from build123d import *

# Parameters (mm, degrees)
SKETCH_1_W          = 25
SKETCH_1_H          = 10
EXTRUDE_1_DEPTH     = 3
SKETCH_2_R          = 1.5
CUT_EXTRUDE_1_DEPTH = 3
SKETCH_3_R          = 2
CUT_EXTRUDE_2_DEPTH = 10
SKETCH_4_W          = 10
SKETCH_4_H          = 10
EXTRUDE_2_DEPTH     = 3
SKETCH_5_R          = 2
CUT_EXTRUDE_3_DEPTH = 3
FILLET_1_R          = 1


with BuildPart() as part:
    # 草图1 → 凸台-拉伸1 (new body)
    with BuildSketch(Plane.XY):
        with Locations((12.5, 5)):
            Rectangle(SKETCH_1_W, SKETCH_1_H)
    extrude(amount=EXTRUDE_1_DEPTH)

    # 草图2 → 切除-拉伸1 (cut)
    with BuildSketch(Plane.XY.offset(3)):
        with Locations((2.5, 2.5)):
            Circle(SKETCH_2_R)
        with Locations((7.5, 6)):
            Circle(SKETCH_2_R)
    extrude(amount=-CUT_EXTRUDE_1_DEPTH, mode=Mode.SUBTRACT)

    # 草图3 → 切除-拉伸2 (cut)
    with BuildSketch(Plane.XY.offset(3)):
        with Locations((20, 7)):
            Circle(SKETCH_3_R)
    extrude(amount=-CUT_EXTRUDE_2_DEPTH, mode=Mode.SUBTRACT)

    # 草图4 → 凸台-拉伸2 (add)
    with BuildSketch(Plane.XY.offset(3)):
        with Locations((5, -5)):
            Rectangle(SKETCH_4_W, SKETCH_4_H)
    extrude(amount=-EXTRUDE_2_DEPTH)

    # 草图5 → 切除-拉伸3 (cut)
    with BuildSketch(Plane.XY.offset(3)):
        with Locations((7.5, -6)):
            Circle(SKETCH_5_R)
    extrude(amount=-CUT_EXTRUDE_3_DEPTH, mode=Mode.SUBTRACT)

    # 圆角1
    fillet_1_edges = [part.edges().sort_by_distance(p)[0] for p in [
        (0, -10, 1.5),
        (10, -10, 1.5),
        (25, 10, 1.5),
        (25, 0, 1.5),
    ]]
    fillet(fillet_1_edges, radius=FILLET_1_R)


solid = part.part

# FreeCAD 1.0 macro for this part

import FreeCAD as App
import Part
import Sketcher

V = App.Vector
Q = App.Units.Quantity


def edges_at(feature, points):
    """Names of the edges that pass closest to the given points."""
    edges = feature.Shape.Edges
    near = lambda p: min(range(len(edges)), key=lambda i: edges[i].distToShape(Part.Vertex(*p))[0])
    return sorted({f"Edge{near(p) + 1}" for p in points})

doc = App.newDocument("Part")
body = doc.addObject("PartDesign::Body", "Body")

# Sketch on XY plane
sketch1 = body.newObject("Sketcher::SketchObject", "Sketch")
sketch1.AttachmentSupport = (doc.getObject("XY_Plane"), [""])
sketch1.MapMode = "FlatFace"
sketch1.addGeometry([
    Part.LineSegment(V(0, 10, 0), V(0, 0, 0)),
    Part.LineSegment(V(0, 0, 0), V(25, 0, 0)),
    Part.LineSegment(V(25, 0, 0), V(25, 10, 0)),
    Part.LineSegment(V(25, 10, 0), V(0, 10, 0)),
], False)
sketch1.addConstraint([
    Sketcher.Constraint("Coincident", 0, 2, 1, 1),
    Sketcher.Constraint("Coincident", 1, 2, 2, 1),
    Sketcher.Constraint("Coincident", 2, 2, 3, 1),
    Sketcher.Constraint("Coincident", 3, 2, 0, 1),
    Sketcher.Constraint("Vertical", 0),
    Sketcher.Constraint("Horizontal", 1),
    Sketcher.Constraint("Vertical", 2),
    Sketcher.Constraint("Horizontal", 3),
    Sketcher.Constraint("Coincident", 0, 2, -1, 1),
    Sketcher.Constraint("DistanceX", 1, 1, 1, 2, Q("25 mm")),
    Sketcher.Constraint("DistanceY", 0, 2, 0, 1, Q("10 mm")),
])
pad1 = body.newObject("PartDesign::Pad", "Pad")
pad1.Profile = sketch1
pad1.Length = 3

# Sketch on XY plane
sketch2 = body.newObject("Sketcher::SketchObject", "Sketch001")
sketch2.AttachmentSupport = (doc.getObject("XY_Plane"), [""])
sketch2.MapMode = "FlatFace"
sketch2.AttachmentOffset = App.Placement(V(0, 0, 3), App.Rotation())
sketch2.addGeometry([
    Part.Circle(V(2.5, 2.5, 0), V(0, 0, 1), 1.5),
    Part.Circle(V(7.5, 6, 0), V(0, 0, 1), 1.5),
], False)
sketch2.addConstraint([
    Sketcher.Constraint("Equal", 0, 1),
    Sketcher.Constraint("Diameter", 0, Q("3 mm")),
    Sketcher.Constraint("DistanceY", -1, 1, 1, 3, Q("6 mm")),
    Sketcher.Constraint("DistanceX", 0, 3, 1, 3, Q("5 mm")),
    Sketcher.Constraint("DistanceX", -1, 1, 0, 3, Q("2.5 mm")),
    Sketcher.Constraint("DistanceY", -1, 1, 0, 3, Q("2.5 mm")),
])
pocket1 = body.newObject("PartDesign::Pocket", "Pocket")
pocket1.Profile = sketch2
pocket1.Length = 3

# Sketch on XY plane
sketch3 = body.newObject("Sketcher::SketchObject", "Sketch002")
sketch3.AttachmentSupport = (doc.getObject("XY_Plane"), [""])
sketch3.MapMode = "FlatFace"
sketch3.AttachmentOffset = App.Placement(V(0, 0, 3), App.Rotation())
sketch3.addGeometry(Part.Circle(V(20, 7, 0), V(0, 0, 1), 2), False)
sketch3.addConstraint([
    Sketcher.Constraint("Diameter", 0, Q("4 mm")),
    Sketcher.Constraint("DistanceX", -1, 1, 0, 3, Q("20 mm")),
    Sketcher.Constraint("DistanceY", -1, 1, 0, 3, Q("7 mm")),
])
pocket2 = body.newObject("PartDesign::Pocket", "Pocket001")
pocket2.Profile = sketch3
pocket2.Length = 10

# Sketch on XY plane
sketch4 = body.newObject("Sketcher::SketchObject", "Sketch003")
sketch4.AttachmentSupport = (doc.getObject("XY_Plane"), [""])
sketch4.MapMode = "FlatFace"
sketch4.AttachmentOffset = App.Placement(V(0, 0, 3), App.Rotation())
sketch4.addGeometry([
    Part.LineSegment(V(0, 0, 0), V(0, -10, 0)),
    Part.LineSegment(V(0, -10, 0), V(10, -10, 0)),
    Part.LineSegment(V(10, -10, 0), V(10, 0, 0)),
    Part.LineSegment(V(10, 0, 0), V(0, 0, 0)),
], False)
sketch4.addConstraint([
    Sketcher.Constraint("Coincident", 0, 2, 1, 1),
    Sketcher.Constraint("Coincident", 1, 2, 2, 1),
    Sketcher.Constraint("Coincident", 2, 2, 3, 1),
    Sketcher.Constraint("Coincident", 3, 2, 0, 1),
    Sketcher.Constraint("Vertical", 0),
    Sketcher.Constraint("Horizontal", 1),
    Sketcher.Constraint("Vertical", 2),
    Sketcher.Constraint("Horizontal", 3),
    Sketcher.Constraint("Coincident", 3, 2, -1, 1),
    Sketcher.Constraint("Equal", 3, 0),
    Sketcher.Constraint("DistanceX", 1, 1, 1, 2, Q("10 mm")),
])
pad2 = body.newObject("PartDesign::Pad", "Pad001")
pad2.Profile = sketch4
pad2.Length = 3
pad2.Reversed = True

# Sketch on XY plane
sketch5 = body.newObject("Sketcher::SketchObject", "Sketch004")
sketch5.AttachmentSupport = (doc.getObject("XY_Plane"), [""])
sketch5.MapMode = "FlatFace"
sketch5.AttachmentOffset = App.Placement(V(0, 0, 3), App.Rotation())
sketch5.addGeometry(Part.Circle(V(7.5, -6, 0), V(0, 0, 1), 2), False)
sketch5.addConstraint([
    Sketcher.Constraint("Diameter", 0, Q("4 mm")),
    Sketcher.Constraint("DistanceY", 0, 3, -1, 1, Q("6 mm")),
    Sketcher.Constraint("DistanceX", -1, 1, 0, 3, Q("7.5 mm")),
])
pocket3 = body.newObject("PartDesign::Pocket", "Pocket002")
pocket3.Profile = sketch5
pocket3.Length = 3
doc.recompute()

fillet = body.newObject("PartDesign::Fillet", "Fillet")
fillet.Base = (pocket3, edges_at(pocket3, [
    (0, -10, 1.5),
    (10, -10, 1.5),
    (25, 10, 1.5),
    (25, 0, 1.5),
]))
fillet.Radius = 1

doc.recompute()
